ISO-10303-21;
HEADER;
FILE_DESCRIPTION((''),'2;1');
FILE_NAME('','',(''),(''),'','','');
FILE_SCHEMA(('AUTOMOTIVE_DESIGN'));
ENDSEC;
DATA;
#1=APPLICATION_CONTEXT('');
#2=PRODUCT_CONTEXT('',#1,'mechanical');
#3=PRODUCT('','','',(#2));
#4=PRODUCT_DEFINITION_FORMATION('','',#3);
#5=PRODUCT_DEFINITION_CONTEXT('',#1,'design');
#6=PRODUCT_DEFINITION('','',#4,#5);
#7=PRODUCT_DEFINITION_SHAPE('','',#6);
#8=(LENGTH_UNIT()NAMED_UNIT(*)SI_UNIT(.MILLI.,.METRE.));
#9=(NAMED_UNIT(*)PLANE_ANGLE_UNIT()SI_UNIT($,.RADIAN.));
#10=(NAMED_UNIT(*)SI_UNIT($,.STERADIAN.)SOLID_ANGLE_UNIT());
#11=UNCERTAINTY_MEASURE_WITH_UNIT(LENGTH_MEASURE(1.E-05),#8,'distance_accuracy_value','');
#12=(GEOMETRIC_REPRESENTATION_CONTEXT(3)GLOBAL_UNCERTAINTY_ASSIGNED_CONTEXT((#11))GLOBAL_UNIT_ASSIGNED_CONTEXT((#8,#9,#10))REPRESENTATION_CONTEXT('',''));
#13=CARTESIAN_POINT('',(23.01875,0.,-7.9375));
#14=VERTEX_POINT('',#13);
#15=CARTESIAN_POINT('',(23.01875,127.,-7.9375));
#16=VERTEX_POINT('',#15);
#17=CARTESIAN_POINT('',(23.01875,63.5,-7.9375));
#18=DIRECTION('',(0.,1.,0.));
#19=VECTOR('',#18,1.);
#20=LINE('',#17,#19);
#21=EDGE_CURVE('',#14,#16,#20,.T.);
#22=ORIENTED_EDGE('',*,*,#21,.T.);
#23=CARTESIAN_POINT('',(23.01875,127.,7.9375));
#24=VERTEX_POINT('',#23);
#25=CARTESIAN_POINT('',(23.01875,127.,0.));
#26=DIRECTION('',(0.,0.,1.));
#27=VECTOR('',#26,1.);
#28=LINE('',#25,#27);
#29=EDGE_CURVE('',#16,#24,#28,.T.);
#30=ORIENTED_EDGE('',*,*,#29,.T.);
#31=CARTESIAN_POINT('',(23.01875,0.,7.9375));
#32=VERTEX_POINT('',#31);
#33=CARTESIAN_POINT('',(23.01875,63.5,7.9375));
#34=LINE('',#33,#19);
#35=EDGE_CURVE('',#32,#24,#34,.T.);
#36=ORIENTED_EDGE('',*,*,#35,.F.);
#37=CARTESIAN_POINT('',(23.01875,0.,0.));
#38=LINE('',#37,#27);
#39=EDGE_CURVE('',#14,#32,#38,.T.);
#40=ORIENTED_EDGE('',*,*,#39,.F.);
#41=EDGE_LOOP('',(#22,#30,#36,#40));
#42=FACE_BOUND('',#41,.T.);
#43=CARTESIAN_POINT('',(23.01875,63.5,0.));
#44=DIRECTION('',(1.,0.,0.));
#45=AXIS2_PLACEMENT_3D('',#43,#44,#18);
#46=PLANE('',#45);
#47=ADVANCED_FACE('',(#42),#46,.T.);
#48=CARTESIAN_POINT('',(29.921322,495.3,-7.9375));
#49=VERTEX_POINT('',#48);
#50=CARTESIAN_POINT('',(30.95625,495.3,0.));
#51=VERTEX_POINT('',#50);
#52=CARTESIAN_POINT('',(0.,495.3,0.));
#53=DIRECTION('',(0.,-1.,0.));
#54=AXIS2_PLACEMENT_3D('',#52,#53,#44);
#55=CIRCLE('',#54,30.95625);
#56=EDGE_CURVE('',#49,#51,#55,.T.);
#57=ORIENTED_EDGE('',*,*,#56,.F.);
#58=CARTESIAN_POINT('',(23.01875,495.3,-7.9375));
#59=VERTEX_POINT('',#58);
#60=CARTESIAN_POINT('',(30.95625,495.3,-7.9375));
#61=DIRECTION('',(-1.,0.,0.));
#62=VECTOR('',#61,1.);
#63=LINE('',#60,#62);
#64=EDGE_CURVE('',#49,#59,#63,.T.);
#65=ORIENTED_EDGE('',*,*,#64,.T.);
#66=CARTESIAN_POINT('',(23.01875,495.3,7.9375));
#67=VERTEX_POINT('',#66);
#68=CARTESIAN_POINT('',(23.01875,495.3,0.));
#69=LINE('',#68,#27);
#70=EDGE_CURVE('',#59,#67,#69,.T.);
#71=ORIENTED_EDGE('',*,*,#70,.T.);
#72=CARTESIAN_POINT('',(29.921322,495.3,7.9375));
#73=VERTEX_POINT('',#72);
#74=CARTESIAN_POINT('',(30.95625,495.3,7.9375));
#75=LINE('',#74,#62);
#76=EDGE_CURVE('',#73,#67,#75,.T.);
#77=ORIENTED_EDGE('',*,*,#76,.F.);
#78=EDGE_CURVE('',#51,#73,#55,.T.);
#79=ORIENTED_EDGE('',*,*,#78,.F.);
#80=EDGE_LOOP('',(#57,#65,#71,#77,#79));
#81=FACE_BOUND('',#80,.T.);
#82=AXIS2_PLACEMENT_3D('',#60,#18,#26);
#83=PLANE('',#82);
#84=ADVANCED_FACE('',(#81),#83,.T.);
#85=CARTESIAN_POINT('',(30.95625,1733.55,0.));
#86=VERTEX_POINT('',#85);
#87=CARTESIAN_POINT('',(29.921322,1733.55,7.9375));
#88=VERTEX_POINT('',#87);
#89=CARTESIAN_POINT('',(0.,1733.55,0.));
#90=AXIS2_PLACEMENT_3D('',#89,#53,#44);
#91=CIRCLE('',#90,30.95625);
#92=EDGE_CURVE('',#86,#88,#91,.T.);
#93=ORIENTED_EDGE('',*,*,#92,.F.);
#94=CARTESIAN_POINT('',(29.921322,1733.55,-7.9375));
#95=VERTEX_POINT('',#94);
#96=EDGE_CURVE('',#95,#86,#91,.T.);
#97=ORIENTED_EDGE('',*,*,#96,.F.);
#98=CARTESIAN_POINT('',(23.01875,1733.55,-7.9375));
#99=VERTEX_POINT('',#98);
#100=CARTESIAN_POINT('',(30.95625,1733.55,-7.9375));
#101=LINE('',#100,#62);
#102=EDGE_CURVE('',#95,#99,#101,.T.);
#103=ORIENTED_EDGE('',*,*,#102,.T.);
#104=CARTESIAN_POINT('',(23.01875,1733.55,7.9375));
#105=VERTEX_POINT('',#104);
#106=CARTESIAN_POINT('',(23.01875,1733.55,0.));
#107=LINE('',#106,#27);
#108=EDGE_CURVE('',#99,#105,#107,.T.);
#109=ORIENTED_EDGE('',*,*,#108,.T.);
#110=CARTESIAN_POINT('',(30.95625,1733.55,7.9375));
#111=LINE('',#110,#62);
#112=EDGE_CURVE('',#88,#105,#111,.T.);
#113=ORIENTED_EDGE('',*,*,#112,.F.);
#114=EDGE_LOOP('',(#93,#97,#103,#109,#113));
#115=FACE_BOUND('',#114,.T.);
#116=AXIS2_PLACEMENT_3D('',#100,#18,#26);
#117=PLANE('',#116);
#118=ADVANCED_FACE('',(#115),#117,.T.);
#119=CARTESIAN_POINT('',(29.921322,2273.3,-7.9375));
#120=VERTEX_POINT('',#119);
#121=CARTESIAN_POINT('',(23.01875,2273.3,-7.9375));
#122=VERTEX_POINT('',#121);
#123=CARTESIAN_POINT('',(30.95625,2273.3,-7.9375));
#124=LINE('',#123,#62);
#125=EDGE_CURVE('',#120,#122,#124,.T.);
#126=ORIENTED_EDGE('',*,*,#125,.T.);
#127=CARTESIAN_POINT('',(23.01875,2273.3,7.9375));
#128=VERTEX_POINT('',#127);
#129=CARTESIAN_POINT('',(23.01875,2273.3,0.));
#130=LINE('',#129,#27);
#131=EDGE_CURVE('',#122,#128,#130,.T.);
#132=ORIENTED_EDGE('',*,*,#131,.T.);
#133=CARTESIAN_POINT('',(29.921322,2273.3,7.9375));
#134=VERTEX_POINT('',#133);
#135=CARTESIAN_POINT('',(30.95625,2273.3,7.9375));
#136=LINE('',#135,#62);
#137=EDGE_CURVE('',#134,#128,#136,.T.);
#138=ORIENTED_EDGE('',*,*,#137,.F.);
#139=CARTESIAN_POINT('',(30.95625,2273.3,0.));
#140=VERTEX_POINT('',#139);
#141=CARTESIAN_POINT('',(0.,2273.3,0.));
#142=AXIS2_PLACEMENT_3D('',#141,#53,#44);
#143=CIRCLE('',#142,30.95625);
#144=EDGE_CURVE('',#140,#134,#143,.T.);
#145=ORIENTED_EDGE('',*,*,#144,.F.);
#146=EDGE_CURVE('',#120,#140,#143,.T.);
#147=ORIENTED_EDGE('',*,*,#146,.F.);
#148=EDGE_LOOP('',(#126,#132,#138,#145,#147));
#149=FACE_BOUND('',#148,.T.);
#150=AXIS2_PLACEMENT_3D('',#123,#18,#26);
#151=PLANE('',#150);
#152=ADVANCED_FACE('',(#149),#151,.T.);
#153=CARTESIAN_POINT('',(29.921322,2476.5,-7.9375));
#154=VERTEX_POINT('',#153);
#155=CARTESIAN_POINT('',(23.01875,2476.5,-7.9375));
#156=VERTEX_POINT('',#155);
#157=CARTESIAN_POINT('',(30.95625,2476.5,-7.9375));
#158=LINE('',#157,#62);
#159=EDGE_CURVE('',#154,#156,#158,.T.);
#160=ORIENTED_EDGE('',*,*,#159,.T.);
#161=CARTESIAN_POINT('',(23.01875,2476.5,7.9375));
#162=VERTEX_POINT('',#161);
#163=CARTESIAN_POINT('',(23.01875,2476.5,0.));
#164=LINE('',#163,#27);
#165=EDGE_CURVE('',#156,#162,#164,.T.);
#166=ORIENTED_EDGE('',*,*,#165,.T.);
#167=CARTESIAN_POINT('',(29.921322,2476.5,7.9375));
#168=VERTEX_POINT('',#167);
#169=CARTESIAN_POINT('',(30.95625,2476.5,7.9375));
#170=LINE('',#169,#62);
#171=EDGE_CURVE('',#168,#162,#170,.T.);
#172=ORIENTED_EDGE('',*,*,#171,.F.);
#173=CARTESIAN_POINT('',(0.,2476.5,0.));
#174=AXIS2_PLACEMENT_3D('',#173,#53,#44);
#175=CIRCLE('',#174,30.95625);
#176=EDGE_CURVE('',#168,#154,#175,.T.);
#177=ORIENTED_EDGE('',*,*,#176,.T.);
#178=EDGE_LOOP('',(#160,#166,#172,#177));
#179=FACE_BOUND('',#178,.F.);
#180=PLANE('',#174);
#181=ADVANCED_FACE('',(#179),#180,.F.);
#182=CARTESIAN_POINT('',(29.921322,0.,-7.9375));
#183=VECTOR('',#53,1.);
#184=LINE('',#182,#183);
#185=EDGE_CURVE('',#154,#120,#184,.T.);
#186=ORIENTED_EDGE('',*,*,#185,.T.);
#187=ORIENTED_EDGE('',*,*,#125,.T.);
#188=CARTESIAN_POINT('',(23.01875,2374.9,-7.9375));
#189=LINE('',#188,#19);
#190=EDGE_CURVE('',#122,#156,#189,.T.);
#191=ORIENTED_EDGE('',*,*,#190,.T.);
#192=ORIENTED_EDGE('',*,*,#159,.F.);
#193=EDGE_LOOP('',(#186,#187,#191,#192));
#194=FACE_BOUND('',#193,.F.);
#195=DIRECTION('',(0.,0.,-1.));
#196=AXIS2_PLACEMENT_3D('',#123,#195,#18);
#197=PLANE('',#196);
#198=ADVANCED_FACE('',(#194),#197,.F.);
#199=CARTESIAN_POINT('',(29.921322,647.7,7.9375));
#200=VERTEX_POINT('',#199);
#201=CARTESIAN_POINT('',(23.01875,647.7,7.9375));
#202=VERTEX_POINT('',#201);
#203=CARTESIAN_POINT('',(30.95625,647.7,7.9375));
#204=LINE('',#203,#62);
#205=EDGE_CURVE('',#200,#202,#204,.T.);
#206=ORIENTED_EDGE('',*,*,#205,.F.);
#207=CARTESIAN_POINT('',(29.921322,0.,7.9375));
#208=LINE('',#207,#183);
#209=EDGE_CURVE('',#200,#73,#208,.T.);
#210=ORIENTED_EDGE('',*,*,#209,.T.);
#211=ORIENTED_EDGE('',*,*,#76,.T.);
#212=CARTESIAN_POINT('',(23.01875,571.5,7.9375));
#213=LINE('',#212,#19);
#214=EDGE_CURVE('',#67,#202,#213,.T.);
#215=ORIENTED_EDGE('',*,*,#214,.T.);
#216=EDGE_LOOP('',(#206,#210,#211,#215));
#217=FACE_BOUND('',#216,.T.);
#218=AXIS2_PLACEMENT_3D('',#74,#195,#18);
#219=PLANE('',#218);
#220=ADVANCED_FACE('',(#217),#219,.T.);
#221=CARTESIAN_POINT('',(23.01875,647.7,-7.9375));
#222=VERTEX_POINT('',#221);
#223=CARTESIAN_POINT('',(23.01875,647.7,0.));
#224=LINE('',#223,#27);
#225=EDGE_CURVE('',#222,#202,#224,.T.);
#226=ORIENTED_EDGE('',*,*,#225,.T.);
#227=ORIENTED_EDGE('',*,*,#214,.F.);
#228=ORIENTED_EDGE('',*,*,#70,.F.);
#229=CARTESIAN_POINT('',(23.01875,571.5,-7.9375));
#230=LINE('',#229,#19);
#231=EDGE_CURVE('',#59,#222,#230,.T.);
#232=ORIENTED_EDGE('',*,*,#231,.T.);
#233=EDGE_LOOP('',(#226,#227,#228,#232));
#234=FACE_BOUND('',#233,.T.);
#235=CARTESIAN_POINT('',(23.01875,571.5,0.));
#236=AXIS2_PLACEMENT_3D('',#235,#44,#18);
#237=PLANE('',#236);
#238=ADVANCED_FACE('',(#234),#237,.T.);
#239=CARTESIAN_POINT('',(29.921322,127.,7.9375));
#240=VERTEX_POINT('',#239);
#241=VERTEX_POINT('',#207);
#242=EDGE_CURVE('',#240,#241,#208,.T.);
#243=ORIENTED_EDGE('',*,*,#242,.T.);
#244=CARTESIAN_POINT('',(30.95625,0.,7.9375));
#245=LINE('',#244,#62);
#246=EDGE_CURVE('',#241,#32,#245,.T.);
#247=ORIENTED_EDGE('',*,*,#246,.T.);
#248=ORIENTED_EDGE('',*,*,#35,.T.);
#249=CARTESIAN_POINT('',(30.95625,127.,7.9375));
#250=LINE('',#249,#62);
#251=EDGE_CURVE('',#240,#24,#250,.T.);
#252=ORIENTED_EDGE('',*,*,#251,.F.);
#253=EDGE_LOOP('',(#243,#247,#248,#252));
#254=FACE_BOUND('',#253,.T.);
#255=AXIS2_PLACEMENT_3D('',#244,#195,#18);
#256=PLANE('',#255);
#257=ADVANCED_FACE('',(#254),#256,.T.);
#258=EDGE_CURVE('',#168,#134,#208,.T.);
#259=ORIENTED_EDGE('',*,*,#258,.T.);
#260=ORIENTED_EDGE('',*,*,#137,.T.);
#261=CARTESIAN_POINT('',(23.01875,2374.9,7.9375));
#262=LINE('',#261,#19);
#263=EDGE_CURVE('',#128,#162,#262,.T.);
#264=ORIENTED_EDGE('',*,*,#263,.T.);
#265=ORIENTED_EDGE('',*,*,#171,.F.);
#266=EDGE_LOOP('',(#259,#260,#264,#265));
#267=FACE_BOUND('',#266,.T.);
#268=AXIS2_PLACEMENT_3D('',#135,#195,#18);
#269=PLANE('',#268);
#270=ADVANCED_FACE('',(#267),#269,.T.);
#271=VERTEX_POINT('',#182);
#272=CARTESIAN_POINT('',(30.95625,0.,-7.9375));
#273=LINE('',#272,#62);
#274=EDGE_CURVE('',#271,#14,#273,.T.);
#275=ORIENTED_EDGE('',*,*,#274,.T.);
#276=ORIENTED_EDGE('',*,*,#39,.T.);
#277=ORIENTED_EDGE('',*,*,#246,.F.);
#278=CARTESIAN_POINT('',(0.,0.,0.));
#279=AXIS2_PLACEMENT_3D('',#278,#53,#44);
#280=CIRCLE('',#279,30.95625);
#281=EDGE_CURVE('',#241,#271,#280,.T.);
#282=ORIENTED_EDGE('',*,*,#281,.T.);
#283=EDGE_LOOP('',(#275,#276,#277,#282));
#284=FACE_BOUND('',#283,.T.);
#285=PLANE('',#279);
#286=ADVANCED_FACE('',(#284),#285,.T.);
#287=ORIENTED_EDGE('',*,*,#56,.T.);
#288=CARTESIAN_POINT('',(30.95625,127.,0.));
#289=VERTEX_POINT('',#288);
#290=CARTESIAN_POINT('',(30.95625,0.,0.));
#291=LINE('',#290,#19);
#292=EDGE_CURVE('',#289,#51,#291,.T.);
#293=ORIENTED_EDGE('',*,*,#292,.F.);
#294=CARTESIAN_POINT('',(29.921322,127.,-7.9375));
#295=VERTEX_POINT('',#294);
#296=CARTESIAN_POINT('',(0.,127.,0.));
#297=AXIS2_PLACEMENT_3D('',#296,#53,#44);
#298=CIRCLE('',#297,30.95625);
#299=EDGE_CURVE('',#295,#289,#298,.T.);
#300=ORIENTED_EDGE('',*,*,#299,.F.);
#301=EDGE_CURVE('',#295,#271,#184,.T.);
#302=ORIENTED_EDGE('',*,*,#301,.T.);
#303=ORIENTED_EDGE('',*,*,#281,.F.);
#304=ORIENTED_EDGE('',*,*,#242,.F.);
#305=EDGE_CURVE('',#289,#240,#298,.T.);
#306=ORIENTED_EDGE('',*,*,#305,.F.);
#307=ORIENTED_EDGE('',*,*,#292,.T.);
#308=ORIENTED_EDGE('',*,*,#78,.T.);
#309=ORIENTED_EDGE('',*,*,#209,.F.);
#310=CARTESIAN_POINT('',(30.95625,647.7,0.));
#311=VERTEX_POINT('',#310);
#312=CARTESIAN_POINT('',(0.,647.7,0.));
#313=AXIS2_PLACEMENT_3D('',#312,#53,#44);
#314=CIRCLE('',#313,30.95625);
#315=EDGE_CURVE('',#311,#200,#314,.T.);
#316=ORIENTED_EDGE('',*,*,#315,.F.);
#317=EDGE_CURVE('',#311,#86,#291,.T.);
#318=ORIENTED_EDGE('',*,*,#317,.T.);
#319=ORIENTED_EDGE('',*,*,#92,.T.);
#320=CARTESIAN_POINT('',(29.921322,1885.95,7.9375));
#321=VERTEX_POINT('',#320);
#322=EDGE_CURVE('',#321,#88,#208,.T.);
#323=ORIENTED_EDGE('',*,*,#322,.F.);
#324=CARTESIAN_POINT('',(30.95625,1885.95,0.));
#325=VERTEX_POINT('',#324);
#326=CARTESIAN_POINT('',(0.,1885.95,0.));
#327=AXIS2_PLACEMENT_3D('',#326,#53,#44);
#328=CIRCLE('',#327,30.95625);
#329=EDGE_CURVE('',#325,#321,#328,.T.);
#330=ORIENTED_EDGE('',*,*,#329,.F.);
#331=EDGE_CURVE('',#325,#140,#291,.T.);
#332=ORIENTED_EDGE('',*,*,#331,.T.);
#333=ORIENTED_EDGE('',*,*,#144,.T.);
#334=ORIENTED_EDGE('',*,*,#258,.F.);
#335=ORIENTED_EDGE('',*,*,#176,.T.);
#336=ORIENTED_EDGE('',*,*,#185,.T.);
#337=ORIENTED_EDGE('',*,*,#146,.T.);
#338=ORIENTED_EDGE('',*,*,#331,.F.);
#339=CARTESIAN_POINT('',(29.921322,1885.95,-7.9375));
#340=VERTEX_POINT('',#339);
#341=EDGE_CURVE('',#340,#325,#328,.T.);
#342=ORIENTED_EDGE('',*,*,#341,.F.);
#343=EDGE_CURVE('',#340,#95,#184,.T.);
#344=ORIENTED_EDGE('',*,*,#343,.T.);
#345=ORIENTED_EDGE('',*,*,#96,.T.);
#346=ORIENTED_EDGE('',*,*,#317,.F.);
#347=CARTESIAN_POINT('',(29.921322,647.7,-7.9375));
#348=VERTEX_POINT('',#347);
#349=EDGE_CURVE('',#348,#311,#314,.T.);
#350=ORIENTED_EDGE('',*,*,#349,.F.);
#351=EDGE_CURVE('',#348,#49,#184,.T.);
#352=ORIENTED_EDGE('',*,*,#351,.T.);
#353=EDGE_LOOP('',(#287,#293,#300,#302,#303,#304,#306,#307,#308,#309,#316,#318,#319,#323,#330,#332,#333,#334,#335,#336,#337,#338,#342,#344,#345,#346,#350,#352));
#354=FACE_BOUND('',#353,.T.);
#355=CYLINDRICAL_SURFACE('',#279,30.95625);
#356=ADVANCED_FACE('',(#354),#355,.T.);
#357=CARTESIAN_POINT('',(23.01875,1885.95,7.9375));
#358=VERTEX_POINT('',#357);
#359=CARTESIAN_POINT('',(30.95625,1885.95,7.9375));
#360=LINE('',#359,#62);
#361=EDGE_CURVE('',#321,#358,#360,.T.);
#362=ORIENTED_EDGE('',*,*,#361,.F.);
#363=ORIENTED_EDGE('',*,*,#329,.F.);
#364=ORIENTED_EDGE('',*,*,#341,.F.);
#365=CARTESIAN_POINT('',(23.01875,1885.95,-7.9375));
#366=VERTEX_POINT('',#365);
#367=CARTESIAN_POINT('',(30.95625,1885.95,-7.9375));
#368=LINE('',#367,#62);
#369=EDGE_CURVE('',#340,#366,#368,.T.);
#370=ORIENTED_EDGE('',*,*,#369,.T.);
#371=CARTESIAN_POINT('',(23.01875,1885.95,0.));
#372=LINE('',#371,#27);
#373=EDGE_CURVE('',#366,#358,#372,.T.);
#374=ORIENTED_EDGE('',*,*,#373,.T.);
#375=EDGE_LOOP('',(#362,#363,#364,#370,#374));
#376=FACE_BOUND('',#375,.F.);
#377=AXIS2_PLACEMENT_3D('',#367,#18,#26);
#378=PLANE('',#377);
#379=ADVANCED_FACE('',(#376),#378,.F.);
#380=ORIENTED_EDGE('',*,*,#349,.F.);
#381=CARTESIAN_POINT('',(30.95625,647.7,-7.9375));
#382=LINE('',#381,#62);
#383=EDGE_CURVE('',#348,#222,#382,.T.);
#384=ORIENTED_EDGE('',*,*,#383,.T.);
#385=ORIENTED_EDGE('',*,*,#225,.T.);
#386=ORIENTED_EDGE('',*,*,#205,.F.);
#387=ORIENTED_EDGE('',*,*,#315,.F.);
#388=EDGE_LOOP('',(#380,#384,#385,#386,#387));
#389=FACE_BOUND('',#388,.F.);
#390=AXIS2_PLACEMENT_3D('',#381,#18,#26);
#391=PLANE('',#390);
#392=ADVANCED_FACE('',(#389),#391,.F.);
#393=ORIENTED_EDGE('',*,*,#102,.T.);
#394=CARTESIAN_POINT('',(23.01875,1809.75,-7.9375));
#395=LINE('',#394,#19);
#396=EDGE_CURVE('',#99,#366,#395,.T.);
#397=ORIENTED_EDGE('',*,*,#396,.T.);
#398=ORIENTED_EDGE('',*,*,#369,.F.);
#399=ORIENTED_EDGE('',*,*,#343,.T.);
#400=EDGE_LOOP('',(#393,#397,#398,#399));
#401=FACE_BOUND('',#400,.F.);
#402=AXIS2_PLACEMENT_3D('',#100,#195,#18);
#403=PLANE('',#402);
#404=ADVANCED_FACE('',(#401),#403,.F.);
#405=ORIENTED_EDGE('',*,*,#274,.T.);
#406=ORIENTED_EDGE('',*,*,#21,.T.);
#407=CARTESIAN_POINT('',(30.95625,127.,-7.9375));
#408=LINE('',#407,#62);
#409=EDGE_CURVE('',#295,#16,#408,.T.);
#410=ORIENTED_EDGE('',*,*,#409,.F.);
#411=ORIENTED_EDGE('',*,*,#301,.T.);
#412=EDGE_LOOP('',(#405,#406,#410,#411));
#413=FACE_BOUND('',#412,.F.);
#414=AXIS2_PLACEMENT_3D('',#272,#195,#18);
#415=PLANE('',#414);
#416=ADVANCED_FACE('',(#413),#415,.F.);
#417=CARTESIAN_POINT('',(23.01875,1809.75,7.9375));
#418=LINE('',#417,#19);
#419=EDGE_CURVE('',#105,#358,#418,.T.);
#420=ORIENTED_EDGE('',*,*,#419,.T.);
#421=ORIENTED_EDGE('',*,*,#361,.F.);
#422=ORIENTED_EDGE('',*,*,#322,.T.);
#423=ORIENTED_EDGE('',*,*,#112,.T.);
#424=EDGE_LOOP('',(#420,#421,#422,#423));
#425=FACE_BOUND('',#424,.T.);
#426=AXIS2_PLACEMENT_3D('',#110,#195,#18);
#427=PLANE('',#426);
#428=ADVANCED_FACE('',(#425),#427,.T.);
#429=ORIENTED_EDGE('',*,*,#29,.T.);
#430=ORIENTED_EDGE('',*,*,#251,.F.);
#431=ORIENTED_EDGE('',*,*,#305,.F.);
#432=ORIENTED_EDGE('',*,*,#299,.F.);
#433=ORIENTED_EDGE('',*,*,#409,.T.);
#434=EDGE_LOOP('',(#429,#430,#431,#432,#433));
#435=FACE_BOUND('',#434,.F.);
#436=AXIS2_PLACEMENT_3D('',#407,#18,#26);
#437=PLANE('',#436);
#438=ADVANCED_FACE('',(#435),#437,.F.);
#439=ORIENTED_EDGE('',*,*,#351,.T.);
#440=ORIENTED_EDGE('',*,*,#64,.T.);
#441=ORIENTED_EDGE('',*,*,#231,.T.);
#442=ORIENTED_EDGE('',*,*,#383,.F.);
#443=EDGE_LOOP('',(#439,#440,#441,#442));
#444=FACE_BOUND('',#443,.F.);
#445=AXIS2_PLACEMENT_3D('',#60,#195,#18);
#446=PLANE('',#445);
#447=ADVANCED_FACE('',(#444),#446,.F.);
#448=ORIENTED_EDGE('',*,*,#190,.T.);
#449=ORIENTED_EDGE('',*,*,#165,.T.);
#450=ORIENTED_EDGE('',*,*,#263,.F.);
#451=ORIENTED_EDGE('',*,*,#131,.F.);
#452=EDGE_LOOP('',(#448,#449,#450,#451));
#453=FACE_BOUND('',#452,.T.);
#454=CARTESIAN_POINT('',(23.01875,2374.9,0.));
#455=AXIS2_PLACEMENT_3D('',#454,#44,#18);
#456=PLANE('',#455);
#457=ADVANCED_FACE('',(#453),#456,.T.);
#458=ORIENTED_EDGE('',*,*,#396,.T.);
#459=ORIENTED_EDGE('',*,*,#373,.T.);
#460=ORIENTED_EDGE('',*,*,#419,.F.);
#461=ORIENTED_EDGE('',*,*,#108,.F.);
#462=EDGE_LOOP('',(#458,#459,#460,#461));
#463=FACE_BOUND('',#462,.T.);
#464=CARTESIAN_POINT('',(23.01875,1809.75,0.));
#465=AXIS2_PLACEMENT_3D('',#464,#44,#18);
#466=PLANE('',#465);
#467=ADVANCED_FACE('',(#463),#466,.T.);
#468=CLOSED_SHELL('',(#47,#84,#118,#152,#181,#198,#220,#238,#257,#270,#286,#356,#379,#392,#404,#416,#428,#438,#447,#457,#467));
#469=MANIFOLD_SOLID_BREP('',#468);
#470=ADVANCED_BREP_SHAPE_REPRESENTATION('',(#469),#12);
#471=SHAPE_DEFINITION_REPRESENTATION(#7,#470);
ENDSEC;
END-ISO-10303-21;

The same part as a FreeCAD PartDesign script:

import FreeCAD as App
import Part
import Sketcher
from FreeCAD import Vector
Q = App.Units.Quantity


def add_polygon(sketch, points):
    """Adds a closed chain of lines whose ends are joined by coincident constraints."""
    first, n = sketch.GeometryCount, len(points)
    for a, b in zip(points, points[1:] + points[:1]):
        sketch.addGeometry(Part.LineSegment(App.Vector(*a, 0), App.Vector(*b, 0)), False)
    for i in range(n):
        sketch.addConstraint(Sketcher.Constraint("Coincident", first + i, 2, first + (i + 1) % n, 1))

doc = App.newDocument("Part")
body = doc.addObject("PartDesign::Body", "Body")

# Sketch on XZ plane
sketch1 = body.newObject("Sketcher::SketchObject", "Sketch")
sketch1.AttachmentSupport = (doc.getObject("XZ_Plane"), [""])
sketch1.MapMode = "FlatFace"
sketch1.addGeometry(Part.Circle(Vector(0, 0, 0), Vector(0, 0, 1), 30.95625), False)
sketch1.addConstraint([
    Sketcher.Constraint("Coincident", 0, 3, -1, 1),
    Sketcher.Constraint("Diameter", 0, Q("2.4375 in")),
])
pad1 = body.newObject("PartDesign::Pad", "Pad")
pad1.Profile = sketch1
pad1.Length = Q("97.5 in")
pad1.Reversed = True

# Sketch on YZ plane
sketch2 = body.newObject("Sketcher::SketchObject", "Sketch001")
sketch2.AttachmentSupport = (doc.getObject("YZ_Plane"), [""])
sketch2.MapMode = "FlatFace"
sketch2.AttachmentOffset = App.Placement(Vector(0, 0, 1.21875 * 25.4), App.Rotation())
add_polygon(sketch2, [(0, 7.9375), (0, -7.9375), (127, -7.9375), (127, 7.9375)])  # lines 0-3
add_polygon(sketch2, [(495.3, 7.9375), (495.3, -7.9375), (647.7, -7.9375), (647.7, 7.9375)])  # lines 4-7
add_polygon(sketch2, [(1733.55, 7.9375), (1733.55, -7.9375), (1885.95, -7.9375), (1885.95, 7.9375)])  # lines 8-11
add_polygon(sketch2, [(2273.3, 7.9375), (2273.3, -7.9375), (2476.5, -7.9375), (2476.5, 7.9375)])  # lines 12-15
sketch2.addConstraint([
    Sketcher.Constraint("Vertical", 0),
    Sketcher.Constraint("Horizontal", 1),
    Sketcher.Constraint("Vertical", 2),
    Sketcher.Constraint("Horizontal", 3),
    Sketcher.Constraint("Vertical", 4),
    Sketcher.Constraint("Horizontal", 5),
    Sketcher.Constraint("Vertical", 6),
    Sketcher.Constraint("Horizontal", 7),
    Sketcher.Constraint("Vertical", 8),
    Sketcher.Constraint("Horizontal", 9),
    Sketcher.Constraint("Vertical", 10),
    Sketcher.Constraint("Horizontal", 11),
    Sketcher.Constraint("Vertical", 12),
    Sketcher.Constraint("Horizontal", 13),
    Sketcher.Constraint("Vertical", 14),
    Sketcher.Constraint("Horizontal", 15),
    Sketcher.Constraint("Symmetric", 0, 2, 3, 2, -1, 1),
    Sketcher.Constraint("Horizontal", 1, 2, 4, 2),
    Sketcher.Constraint("Horizontal", 3, 2, 6, 2),
    Sketcher.Constraint("Horizontal", 5, 2, 8, 2),
    Sketcher.Constraint("Horizontal", 7, 2, 10, 2),
    Sketcher.Constraint("Horizontal", 9, 2, 12, 2),
    Sketcher.Constraint("Horizontal", 11, 2, 14, 2),
    Sketcher.Constraint("Equal", 7, 9),
    Sketcher.Constraint("DistanceX", 1, 1, 1, 2, Q("5 in")),
    Sketcher.Constraint("DistanceX", 5, 1, 5, 2, Q("6 in")),
    Sketcher.Constraint("DistanceX", 13, 1, 13, 2, Q("8 in")),
    Sketcher.Constraint("DistanceX", 5, 2, 12, 2, Q("64 in")),
    Sketcher.Constraint("DistanceX", -1, 1, 4, 2, Q("19.5 in")),
    Sketcher.Constraint("DistanceY", 0, 2, 0, 1, Q("0.625 in")),
    Sketcher.Constraint("DistanceX", -1, 1, 8, 2, Q("68.25 in")),
])
pocket1 = body.newObject("PartDesign::Pocket", "Pocket")
pocket1.Profile = sketch2
pocket1.Length = Q("0.3125 in")

doc.recompute()
